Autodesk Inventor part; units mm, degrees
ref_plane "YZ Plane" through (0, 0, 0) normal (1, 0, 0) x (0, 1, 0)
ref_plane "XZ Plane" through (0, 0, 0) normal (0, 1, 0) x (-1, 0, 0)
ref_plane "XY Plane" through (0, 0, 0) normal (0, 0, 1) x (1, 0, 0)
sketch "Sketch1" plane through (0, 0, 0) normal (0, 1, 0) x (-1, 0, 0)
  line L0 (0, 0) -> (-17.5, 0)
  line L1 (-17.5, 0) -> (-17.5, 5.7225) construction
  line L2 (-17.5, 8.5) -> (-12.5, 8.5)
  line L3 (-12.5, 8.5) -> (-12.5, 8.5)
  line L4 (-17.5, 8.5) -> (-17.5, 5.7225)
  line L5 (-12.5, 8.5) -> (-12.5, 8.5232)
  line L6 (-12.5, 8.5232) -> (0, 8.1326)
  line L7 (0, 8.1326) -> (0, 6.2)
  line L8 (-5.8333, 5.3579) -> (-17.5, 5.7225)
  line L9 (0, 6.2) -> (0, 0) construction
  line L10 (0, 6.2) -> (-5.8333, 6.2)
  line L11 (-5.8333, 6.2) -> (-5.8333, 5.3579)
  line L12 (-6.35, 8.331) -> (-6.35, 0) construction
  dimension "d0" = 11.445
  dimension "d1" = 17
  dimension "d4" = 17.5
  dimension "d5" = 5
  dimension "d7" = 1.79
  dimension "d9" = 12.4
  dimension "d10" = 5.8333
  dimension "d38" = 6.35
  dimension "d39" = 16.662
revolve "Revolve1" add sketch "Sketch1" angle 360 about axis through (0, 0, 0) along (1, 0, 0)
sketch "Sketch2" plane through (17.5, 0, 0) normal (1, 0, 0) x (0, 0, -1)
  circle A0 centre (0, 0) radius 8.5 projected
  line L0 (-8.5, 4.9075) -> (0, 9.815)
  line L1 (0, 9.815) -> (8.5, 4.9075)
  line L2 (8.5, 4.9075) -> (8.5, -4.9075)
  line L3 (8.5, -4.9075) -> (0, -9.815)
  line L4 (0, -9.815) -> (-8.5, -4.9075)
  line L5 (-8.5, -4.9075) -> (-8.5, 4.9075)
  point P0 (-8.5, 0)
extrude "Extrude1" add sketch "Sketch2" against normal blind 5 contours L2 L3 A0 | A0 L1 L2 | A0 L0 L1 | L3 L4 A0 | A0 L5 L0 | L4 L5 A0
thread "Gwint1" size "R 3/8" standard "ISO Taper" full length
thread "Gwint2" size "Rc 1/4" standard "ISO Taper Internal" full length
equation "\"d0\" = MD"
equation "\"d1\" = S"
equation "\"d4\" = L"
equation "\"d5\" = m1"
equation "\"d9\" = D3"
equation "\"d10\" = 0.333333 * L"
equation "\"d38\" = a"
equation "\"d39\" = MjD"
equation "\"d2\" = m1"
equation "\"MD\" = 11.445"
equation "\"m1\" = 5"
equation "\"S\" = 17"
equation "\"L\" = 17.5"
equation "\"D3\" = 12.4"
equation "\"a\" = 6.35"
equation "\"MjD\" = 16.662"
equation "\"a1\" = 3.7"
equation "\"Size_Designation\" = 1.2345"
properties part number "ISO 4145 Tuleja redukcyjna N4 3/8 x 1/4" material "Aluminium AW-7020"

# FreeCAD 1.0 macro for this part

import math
import FreeCAD as App
import Part
import Sketcher

V = App.Vector
Q = App.Units.Quantity

doc = App.newDocument("Part")
body = doc.addObject("PartDesign::Body", "Body")

# Sketch on XZ plane
sketch1 = body.newObject("Sketcher::SketchObject", "Sketch")
sketch1.AttachmentSupport = (doc.getObject("XZ_Plane"), [""])
sketch1.MapMode = "FlatFace"
sketch1.addGeometry([
    Part.LineSegment(V(12.5, 8.5, 0), V(17.5, 8.5, 0)),  # 0
    Part.LineSegment(V(17.5, 8.5, 0), V(17.5, 5.723, 0)),  # 1
    Part.LineSegment(V(17.5, 5.723, 0), V(5.833, 5.358, 0)),  # 2
    Part.LineSegment(V(5.833, 5.358, 0), V(5.833, 6.2, 0)),  # 3
    Part.LineSegment(V(5.833, 6.2, 0), V(0, 6.2, 0)),  # 4
    Part.LineSegment(V(0, 6.2, 0), V(0, 8.133, 0)),  # 5
    Part.LineSegment(V(0, 8.133, 0), V(12.5, 8.523, 0)),  # 6
    Part.LineSegment(V(12.5, 8.523, 0), V(12.5, 8.5, 0)),  # 7
], False)
sketch1.addConstraint([
    Sketcher.Constraint("Coincident", 0, 2, 1, 1),
    Sketcher.Constraint("Coincident", 1, 2, 2, 1),
    Sketcher.Constraint("Coincident", 2, 2, 3, 1),
    Sketcher.Constraint("Coincident", 3, 2, 4, 1),
    Sketcher.Constraint("Coincident", 4, 2, 5, 1),
    Sketcher.Constraint("Coincident", 5, 2, 6, 1),
    Sketcher.Constraint("Coincident", 6, 2, 7, 1),
    Sketcher.Constraint("Coincident", 7, 2, 0, 1),
    Sketcher.Constraint("Horizontal", 0),
    Sketcher.Constraint("Vertical", 1),
    Sketcher.Constraint("Vertical", 3),
    Sketcher.Constraint("Horizontal", 4),
    Sketcher.Constraint("Vertical", 5),
    Sketcher.Constraint("Vertical", 7),
    Sketcher.Constraint("PointOnObject", 4, 2, -2),
    Sketcher.Constraint("Parallel", 2, 6),
    Sketcher.Constraint("DistanceX", 0, 1, 0, 2, 5.0),
    Sketcher.Constraint("DistanceX", -1, 1, 0, 2, 17.5),
    Sketcher.Constraint("Angle", 6, Q("1.7898 deg")),
    Sketcher.Constraint("DistanceX", 4, 2, 4, 1, 5.8333),
    Sketcher.Constraint("DistanceY", -1, 1, 0, 2, 8.5),
    Sketcher.Constraint("DistanceY", -1, 1, 3, 2, 6.2),
    Sketcher.Constraint("DistanceY", 3, 1, 3, 2, 0.842),
    Sketcher.Constraint("DistanceY", 1, 2, 5, 2, 2.41),
])
revolution = body.newObject("PartDesign::Revolution", "Revolution")
revolution.Profile = sketch1
revolution.ReferenceAxis = (sketch1, ["H_Axis"])
revolution.Angle = 360

# Sketch on YZ plane
sketch2 = body.newObject("Sketcher::SketchObject", "Sketch001")
sketch2.AttachmentSupport = (doc.getObject("YZ_Plane"), [""])
sketch2.MapMode = "FlatFace"
sketch2.AttachmentOffset = App.Placement(V(0, 0, 17.5), App.Rotation())
sketch2.addGeometry([
    Part.LineSegment(V(-4.9, -8.5, 0), V(0, -8.5, 0)),  # 0
    Part.ArcOfCircle(Part.Circle(V(0, 0, 0), V(0, 0, 1), 8.5), math.radians(-150), math.radians(-90)),  # 1
    Part.LineSegment(V(-7.4, -4.3, 0), V(-4.9, -8.5, 0)),  # 2
    Part.ArcOfCircle(Part.Circle(V(0, 0, 0), V(0, 0, 1), 8.5), math.radians(-90), math.radians(-30)),  # 3
    Part.LineSegment(V(0, -8.5, 0), V(4.9, -8.5, 0)),  # 4
    Part.LineSegment(V(4.9, -8.5, 0), V(7.4, -4.3, 0)),  # 5
    Part.ArcOfCircle(Part.Circle(V(0, 0, 0), V(0, 0, 1), 8.5), math.radians(-30), math.radians(30)),  # 6
    Part.LineSegment(V(7.4, -4.3, 0), V(9.8, 0, 0)),  # 7
    Part.LineSegment(V(9.8, 0, 0), V(7.4, 4.3, 0)),  # 8
    Part.LineSegment(V(-9.8, 0, 0), V(-7.4, -4.3, 0)),  # 9
    Part.ArcOfCircle(Part.Circle(V(0, 0, 0), V(0, 0, 1), 8.5), math.radians(150), math.radians(210)),  # 10
    Part.LineSegment(V(-7.4, 4.3, 0), V(-9.8, 0, 0)),  # 11
    Part.ArcOfCircle(Part.Circle(V(0, 0, 0), V(0, 0, 1), 8.5), math.radians(30), math.radians(90)),  # 12
    Part.LineSegment(V(7.4, 4.3, 0), V(4.9, 8.5, 0)),  # 13
    Part.LineSegment(V(4.9, 8.5, 0), V(0, 8.5, 0)),  # 14
    Part.LineSegment(V(-4.9, 8.5, 0), V(-7.4, 4.3, 0)),  # 15
    Part.ArcOfCircle(Part.Circle(V(0, 0, 0), V(0, 0, 1), 8.5), math.radians(90), math.radians(150)),  # 16
    Part.LineSegment(V(0, 8.5, 0), V(-4.9, 8.5, 0)),  # 17
], False)
sketch2.addConstraint([
    Sketcher.Constraint("Tangent", 0, 2, 1, 2),
    Sketcher.Constraint("Tangent", 1, 1, 2, 1),
    Sketcher.Constraint("Coincident", 2, 2, 0, 1),
    Sketcher.Constraint("Tangent", 3, 1, 4, 1),
    Sketcher.Constraint("Coincident", 4, 2, 5, 1),
    Sketcher.Constraint("Tangent", 5, 2, 3, 2),
    Sketcher.Constraint("Tangent", 6, 1, 7, 1),
    Sketcher.Constraint("Coincident", 7, 2, 8, 1),
    Sketcher.Constraint("Tangent", 8, 2, 6, 2),
    Sketcher.Constraint("Tangent", 9, 2, 10, 2),
    Sketcher.Constraint("Tangent", 10, 1, 11, 1),
    Sketcher.Constraint("Coincident", 11, 2, 9, 1),
    Sketcher.Constraint("Tangent", 12, 1, 13, 1),
    Sketcher.Constraint("Coincident", 13, 2, 14, 1),
    Sketcher.Constraint("Tangent", 14, 2, 12, 2),
    Sketcher.Constraint("Tangent", 15, 2, 16, 2),
    Sketcher.Constraint("Tangent", 16, 1, 17, 1),
    Sketcher.Constraint("Coincident", 17, 2, 15, 1),
    Sketcher.Constraint("Horizontal", 0),
    Sketcher.Constraint("Horizontal", 4),
    Sketcher.Constraint("Horizontal", 14),
    Sketcher.Constraint("Horizontal", 17),
    Sketcher.Constraint("Coincident", 1, 3, -1, 1),
    Sketcher.Constraint("Coincident", 3, 3, -1, 1),
    Sketcher.Constraint("Coincident", 6, 3, -1, 1),
    Sketcher.Constraint("Coincident", 10, 3, -1, 1),
    Sketcher.Constraint("Coincident", 12, 3, -1, 1),
    Sketcher.Constraint("Coincident", 16, 3, -1, 1),
    Sketcher.Constraint("Coincident", 6, 1, 5, 2),
    Sketcher.Constraint("Coincident", 9, 2, 1, 1),
    Sketcher.Constraint("Coincident", 12, 1, 8, 2),
    Sketcher.Constraint("Coincident", 15, 2, 10, 1),
    Sketcher.Constraint("Equal", 1, 3),
    Sketcher.Constraint("Symmetric", 7, 2, 11, 2, -1, 1),
    Sketcher.Constraint("PointOnObject", 7, 2, -1),
    Sketcher.Constraint("Equal", 5, 7),
    Sketcher.Constraint("Radius", 1, 8.5),
])
pad1 = body.newObject("PartDesign::Pad", "Pad")
pad1.Profile = sketch2
pad1.Length = 5
pad1.Reversed = True

doc.recompute()
